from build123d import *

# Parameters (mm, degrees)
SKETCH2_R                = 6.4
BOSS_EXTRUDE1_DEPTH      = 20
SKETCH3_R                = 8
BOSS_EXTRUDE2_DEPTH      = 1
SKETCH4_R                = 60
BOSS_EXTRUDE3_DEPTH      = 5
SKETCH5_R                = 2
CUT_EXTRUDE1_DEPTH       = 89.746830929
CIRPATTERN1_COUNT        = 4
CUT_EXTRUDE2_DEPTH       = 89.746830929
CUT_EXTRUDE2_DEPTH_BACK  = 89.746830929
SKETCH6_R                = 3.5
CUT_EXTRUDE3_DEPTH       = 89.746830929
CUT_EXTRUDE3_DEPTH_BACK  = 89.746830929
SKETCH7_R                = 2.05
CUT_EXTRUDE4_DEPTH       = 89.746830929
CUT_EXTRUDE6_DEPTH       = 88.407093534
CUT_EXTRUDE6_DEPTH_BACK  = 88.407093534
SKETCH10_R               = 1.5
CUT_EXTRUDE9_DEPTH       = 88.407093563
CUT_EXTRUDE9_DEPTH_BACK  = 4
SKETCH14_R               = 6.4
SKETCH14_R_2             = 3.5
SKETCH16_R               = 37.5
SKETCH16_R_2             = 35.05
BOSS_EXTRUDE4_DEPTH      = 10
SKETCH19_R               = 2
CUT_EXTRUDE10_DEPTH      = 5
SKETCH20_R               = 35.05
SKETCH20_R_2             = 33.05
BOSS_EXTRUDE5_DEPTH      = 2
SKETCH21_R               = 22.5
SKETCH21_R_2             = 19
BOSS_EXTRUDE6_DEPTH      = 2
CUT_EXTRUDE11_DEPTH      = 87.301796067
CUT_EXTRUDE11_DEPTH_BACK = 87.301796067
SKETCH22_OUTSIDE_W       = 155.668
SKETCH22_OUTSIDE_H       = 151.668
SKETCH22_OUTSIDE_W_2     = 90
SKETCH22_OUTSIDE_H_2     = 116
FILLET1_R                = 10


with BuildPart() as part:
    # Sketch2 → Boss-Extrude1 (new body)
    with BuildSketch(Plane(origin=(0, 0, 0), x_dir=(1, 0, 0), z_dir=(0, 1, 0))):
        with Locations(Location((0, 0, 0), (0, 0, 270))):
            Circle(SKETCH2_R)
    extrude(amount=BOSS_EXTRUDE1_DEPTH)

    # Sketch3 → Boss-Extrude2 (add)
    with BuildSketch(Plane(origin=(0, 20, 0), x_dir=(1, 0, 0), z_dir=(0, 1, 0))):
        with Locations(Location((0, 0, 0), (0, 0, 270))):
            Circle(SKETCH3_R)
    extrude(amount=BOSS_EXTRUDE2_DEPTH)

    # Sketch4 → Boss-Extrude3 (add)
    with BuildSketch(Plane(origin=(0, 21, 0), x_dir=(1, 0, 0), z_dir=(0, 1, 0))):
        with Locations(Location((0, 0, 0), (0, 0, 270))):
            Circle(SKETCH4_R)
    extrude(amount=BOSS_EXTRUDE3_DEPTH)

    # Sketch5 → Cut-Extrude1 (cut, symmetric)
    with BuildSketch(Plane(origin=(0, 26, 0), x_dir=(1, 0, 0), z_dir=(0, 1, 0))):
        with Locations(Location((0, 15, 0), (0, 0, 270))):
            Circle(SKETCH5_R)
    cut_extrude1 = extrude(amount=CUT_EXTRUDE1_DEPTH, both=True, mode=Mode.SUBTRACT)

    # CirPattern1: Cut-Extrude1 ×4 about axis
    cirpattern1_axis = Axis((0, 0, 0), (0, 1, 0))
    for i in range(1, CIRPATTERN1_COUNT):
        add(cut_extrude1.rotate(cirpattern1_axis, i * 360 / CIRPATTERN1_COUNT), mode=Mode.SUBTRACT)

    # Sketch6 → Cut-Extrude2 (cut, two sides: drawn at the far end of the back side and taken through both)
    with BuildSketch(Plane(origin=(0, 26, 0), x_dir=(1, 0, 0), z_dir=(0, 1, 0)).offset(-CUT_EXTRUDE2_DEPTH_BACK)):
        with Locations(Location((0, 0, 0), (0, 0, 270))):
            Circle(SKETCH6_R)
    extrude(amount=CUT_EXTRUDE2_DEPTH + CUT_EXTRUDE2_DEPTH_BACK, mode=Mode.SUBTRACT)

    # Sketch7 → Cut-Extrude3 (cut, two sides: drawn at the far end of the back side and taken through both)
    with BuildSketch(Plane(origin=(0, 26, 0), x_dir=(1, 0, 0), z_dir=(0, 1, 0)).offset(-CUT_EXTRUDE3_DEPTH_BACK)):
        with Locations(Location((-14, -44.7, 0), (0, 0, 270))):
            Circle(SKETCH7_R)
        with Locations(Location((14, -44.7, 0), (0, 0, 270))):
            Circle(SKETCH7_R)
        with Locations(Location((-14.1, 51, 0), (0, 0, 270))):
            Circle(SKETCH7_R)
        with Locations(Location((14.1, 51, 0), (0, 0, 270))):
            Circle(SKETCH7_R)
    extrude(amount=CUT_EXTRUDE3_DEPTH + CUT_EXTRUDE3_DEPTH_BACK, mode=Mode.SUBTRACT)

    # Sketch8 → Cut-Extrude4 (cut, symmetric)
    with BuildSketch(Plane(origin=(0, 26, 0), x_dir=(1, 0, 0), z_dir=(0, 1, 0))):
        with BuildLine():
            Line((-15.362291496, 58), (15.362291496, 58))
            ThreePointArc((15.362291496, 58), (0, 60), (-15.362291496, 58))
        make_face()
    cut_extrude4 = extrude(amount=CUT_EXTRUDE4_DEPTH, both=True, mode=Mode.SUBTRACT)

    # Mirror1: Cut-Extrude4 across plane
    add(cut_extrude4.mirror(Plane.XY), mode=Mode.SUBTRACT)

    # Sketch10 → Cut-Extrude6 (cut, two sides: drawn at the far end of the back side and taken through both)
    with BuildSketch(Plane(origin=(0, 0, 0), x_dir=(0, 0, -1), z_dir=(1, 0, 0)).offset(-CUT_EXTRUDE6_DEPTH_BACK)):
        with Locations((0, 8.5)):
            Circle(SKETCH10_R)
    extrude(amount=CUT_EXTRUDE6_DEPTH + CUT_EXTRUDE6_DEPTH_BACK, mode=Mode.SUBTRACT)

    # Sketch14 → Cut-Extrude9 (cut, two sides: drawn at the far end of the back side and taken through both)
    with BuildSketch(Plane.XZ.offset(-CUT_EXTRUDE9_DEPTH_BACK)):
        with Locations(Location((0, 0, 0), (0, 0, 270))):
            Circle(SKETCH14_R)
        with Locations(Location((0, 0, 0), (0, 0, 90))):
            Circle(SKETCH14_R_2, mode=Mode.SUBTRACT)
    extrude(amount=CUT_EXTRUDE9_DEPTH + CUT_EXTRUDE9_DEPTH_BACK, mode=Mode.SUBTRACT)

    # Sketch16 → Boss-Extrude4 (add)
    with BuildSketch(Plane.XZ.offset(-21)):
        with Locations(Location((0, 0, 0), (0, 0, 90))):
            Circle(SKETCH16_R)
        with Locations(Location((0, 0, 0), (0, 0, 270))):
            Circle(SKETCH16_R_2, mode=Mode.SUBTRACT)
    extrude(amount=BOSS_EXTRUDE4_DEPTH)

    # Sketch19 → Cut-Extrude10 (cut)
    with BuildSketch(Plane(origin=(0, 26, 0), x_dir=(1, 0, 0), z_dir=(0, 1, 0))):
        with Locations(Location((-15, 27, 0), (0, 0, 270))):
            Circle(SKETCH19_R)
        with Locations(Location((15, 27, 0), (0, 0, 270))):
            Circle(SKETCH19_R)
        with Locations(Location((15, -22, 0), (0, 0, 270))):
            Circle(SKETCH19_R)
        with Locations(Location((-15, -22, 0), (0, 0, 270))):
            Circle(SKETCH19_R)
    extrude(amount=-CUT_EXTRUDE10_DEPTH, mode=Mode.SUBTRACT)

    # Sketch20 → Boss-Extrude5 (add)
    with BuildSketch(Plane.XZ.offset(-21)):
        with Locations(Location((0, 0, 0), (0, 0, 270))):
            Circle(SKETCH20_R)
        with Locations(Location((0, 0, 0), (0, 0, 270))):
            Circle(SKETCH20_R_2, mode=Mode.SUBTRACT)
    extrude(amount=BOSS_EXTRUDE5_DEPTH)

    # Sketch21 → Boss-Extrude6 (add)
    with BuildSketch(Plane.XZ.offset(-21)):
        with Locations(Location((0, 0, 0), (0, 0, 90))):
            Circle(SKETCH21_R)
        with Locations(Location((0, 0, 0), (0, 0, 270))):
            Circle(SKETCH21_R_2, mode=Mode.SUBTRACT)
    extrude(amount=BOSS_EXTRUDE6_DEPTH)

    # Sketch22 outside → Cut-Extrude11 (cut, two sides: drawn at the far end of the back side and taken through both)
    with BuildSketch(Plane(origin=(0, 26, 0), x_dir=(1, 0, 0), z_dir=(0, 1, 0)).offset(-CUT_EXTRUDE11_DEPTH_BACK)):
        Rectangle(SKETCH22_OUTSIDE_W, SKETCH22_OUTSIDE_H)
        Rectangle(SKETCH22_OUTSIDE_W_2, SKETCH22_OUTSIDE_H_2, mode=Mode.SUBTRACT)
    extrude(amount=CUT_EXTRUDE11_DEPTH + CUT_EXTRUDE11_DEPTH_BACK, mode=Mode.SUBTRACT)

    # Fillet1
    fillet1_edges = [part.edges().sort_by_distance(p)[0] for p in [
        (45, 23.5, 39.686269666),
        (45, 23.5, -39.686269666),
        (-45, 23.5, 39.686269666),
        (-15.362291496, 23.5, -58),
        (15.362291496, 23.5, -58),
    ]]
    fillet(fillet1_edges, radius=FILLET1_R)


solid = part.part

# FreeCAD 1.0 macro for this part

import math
import FreeCAD as App
import Part
import Sketcher

V = App.Vector


def edges_at(feature, points):
    """Names of the edges that pass closest to the given points."""
    edges = feature.Shape.Edges
    near = lambda p: min(range(len(edges)), key=lambda i: edges[i].distToShape(Part.Vertex(*p))[0])
    return sorted({f"Edge{near(p) + 1}" for p in points})

doc = App.newDocument("Part")
params = doc.addObject("Spreadsheet::Sheet", "Params")
for row, (alias, value) in enumerate([
    ("sketch1_diameter", "12.8 mm"),
    ("pad1_length", "20 mm"),
    ("sketch2_diameter", "16 mm"),
    ("pad2_length", "1 mm"),
    ("sketch3_diameter", "120 mm"),
    ("pad3_length", "5 mm"),
    ("sketch4_diameter", "4 mm"),
    ("pocket1_length", "179.493662 mm"),
    ("sketch5_diameter", "7 mm"),
    ("sketch6_diameter", "4.1 mm"),
    ("sketch7_radius", "60 mm"),
    ("pocket4_length", "179.493662 mm"),
    ("sketch8_diameter", "3 mm"),
    ("sketch9_diameter", "7 mm"),
    ("sketch9_diameter2", "12.8 mm"),
    ("pocket6_length", "88.407094 mm"),
    ("pocket6_length2", "4 mm"),
    ("sketch10_diameter", "75 mm"),
    ("sketch10_diameter2", "70.1 mm"),
    ("pad4_length", "10 mm"),
    ("sketch11_diameter", "4 mm"),
    ("pocket7_length", "5 mm"),
    ("sketch12_diameter", "70.1 mm"),
    ("sketch12_diameter2", "66.1 mm"),
    ("pad5_length", "2 mm"),
    ("sketch13_diameter", "45 mm"),
    ("sketch13_diameter2", "38 mm"),
    ("pad6_length", "2 mm"),
    ("sketch14_width", "90 mm"),
    ("sketch14_height", "116 mm"),
    ("fillet_radius", "10 mm"),
], start=1):
    params.set(f"A{row}", alias)
    params.set(f"B{row}", "=" + value)
    params.setAlias(f"B{row}", alias)

body = doc.addObject("PartDesign::Body", "Body")

# Sketch on XZ plane
sketch1 = body.newObject("Sketcher::SketchObject", "Sketch")
sketch1.AttachmentSupport = (doc.getObject("XZ_Plane"), [""])
sketch1.MapMode = "FlatFace"
sketch1.addGeometry(Part.Circle(V(0, 0, 0), V(0, 0, 1), 6.4), False)
sketch1.addConstraint([
    Sketcher.Constraint("Coincident", 0, 3, -1, 1),
    Sketcher.Constraint("Diameter", 0, 12.8),
])
sketch1.setExpression("Constraints[1]", "Params.sketch1_diameter")
pad1 = body.newObject("PartDesign::Pad", "Pad")
pad1.Profile = sketch1
pad1.setExpression("Length", "Params.pad1_length")
pad1.Reversed = True

# Sketch on XZ plane
sketch2 = body.newObject("Sketcher::SketchObject", "Sketch001")
sketch2.AttachmentSupport = (doc.getObject("XZ_Plane"), [""])
sketch2.MapMode = "FlatFace"
sketch2.AttachmentOffset = App.Placement(V(0, 0, -20), App.Rotation())
sketch2.addGeometry(Part.Circle(V(0, 0, 0), V(0, 0, 1), 8), False)
sketch2.addConstraint([
    Sketcher.Constraint("Coincident", 0, 3, -1, 1),
    Sketcher.Constraint("Diameter", 0, 16.0),
])
sketch2.setExpression("Constraints[1]", "Params.sketch2_diameter")
pad2 = body.newObject("PartDesign::Pad", "Pad001")
pad2.Profile = sketch2
pad2.setExpression("Length", "Params.pad2_length")
pad2.Reversed = True

# Sketch on XZ plane
sketch3 = body.newObject("Sketcher::SketchObject", "Sketch002")
sketch3.AttachmentSupport = (doc.getObject("XZ_Plane"), [""])
sketch3.MapMode = "FlatFace"
sketch3.AttachmentOffset = App.Placement(V(0, 0, -21), App.Rotation())
sketch3.addGeometry(Part.Circle(V(0, 0, 0), V(0, 0, 1), 60), False)
sketch3.addConstraint([
    Sketcher.Constraint("Coincident", 0, 3, -1, 1),
    Sketcher.Constraint("Diameter", 0, 120.0),
])
sketch3.setExpression("Constraints[1]", "Params.sketch3_diameter")
pad3 = body.newObject("PartDesign::Pad", "Pad002")
pad3.Profile = sketch3
pad3.setExpression("Length", "Params.pad3_length")
pad3.Reversed = True

# Sketch on XZ plane
sketch4 = body.newObject("Sketcher::SketchObject", "Sketch003")
sketch4.AttachmentSupport = (doc.getObject("XZ_Plane"), [""])
sketch4.MapMode = "FlatFace"
sketch4.AttachmentOffset = App.Placement(V(0, 0, -26), App.Rotation())
sketch4.addGeometry(Part.Circle(V(0, -15, 0), V(0, 0, 1), 2), False)
sketch4.addConstraint([
    Sketcher.Constraint("PointOnObject", 0, 3, -2),
    Sketcher.Constraint("Diameter", 0, 4.0),
    Sketcher.Constraint("DistanceY", 0, 3, -1, 1, 15.0),
])
sketch4.setExpression("Constraints[1]", "Params.sketch4_diameter")
pocket1 = body.newObject("PartDesign::Pocket", "Pocket")
pocket1.Profile = sketch4
pocket1.setExpression("Length", "Params.pocket1_length")
pocket1.Midplane = True
doc.recompute()

polarpattern = body.newObject("PartDesign::PolarPattern", "PolarPattern")
polarpattern.Originals = [pocket1]
polarpattern.Axis = (doc.getObject("Y_Axis"), [""])
polarpattern.Angle = 360
polarpattern.Occurrences = 4
body.Tip = polarpattern

# Sketch on XZ plane
sketch5 = body.newObject("Sketcher::SketchObject", "Sketch004")
sketch5.AttachmentSupport = (doc.getObject("XZ_Plane"), [""])
sketch5.MapMode = "FlatFace"
sketch5.AttachmentOffset = App.Placement(V(0, 0, -26), App.Rotation())
sketch5.addGeometry(Part.Circle(V(0, 0, 0), V(0, 0, 1), 3.5), False)
sketch5.addConstraint([
    Sketcher.Constraint("Coincident", 0, 3, -1, 1),
    Sketcher.Constraint("Diameter", 0, 7.0),
])
sketch5.setExpression("Constraints[1]", "Params.sketch5_diameter")
pocket2 = body.newObject("PartDesign::Pocket", "Pocket001")
pocket2.Profile = sketch5
pocket2.Type = "ThroughAll"
pocket2.Midplane = True

# Sketch on XZ plane
sketch6 = body.newObject("Sketcher::SketchObject", "Sketch005")
sketch6.AttachmentSupport = (doc.getObject("XZ_Plane"), [""])
sketch6.MapMode = "FlatFace"
sketch6.AttachmentOffset = App.Placement(V(0, 0, -26), App.Rotation())
sketch6.addGeometry([
    Part.Circle(V(-14, 44.7, 0), V(0, 0, 1), 2.05),
    Part.Circle(V(14, 44.7, 0), V(0, 0, 1), 2.05),
    Part.Circle(V(-14.1, -51, 0), V(0, 0, 1), 2.05),
    Part.Circle(V(14.1, -51, 0), V(0, 0, 1), 2.05),
], False)
sketch6.addConstraint([
    Sketcher.Constraint("Equal", 0, 1),
    Sketcher.Constraint("Equal", 1, 2),
    Sketcher.Constraint("Equal", 2, 3),
    Sketcher.Constraint("Symmetric", 0, 3, 1, 3, -2),
    Sketcher.Constraint("Symmetric", 2, 3, 3, 3, -2),
    Sketcher.Constraint("Diameter", 0, 4.1),
    Sketcher.Constraint("DistanceX", 0, 3, -1, 1, 14.0),
    Sketcher.Constraint("DistanceY", 2, 3, -1, 1, 51.0),
    Sketcher.Constraint("DistanceY", -1, 1, 0, 3, 44.7),
    Sketcher.Constraint("DistanceX", 2, 3, -1, 1, 14.1),
])
sketch6.setExpression("Constraints[5]", "Params.sketch6_diameter")
pocket3 = body.newObject("PartDesign::Pocket", "Pocket002")
pocket3.Profile = sketch6
pocket3.Type = "ThroughAll"
pocket3.Midplane = True

# Sketch on XZ plane
sketch7 = body.newObject("Sketcher::SketchObject", "Sketch006")
sketch7.AttachmentSupport = (doc.getObject("XZ_Plane"), [""])
sketch7.MapMode = "FlatFace"
sketch7.AttachmentOffset = App.Placement(V(0, 0, -26), App.Rotation())
sketch7.addGeometry([
    Part.LineSegment(V(-15.362291, -58, 0), V(15.362291, -58, 0)),
    Part.ArcOfCircle(Part.Circle(V(0, 0, 0), V(0, 0, 1), 60), math.radians(-104.835112), math.radians(-75.164888)),
], False)
sketch7.addConstraint([
    Sketcher.Constraint("Coincident", 0, 1, 1, 1),
    Sketcher.Constraint("Coincident", 1, 2, 0, 2),
    Sketcher.Constraint("Horizontal", 0),
    Sketcher.Constraint("Coincident", 1, 3, -1, 1),
    Sketcher.Constraint("Radius", 1, 60.0),
    Sketcher.Constraint("DistanceY", 0, 1, -1, 1, 58.0),
])
sketch7.setExpression("Constraints[4]", "Params.sketch7_radius")
pocket4 = body.newObject("PartDesign::Pocket", "Pocket003")
pocket4.Profile = sketch7
pocket4.setExpression("Length", "Params.pocket4_length")
pocket4.Midplane = True
doc.recompute()

mirrored = body.newObject("PartDesign::Mirrored", "Mirrored")
mirrored.Originals = [pocket4]
mirrored.MirrorPlane = (doc.getObject("XY_Plane"), [""])
body.Tip = mirrored

# Sketch on YZ plane
sketch8 = body.newObject("Sketcher::SketchObject", "Sketch007")
sketch8.AttachmentSupport = (doc.getObject("YZ_Plane"), [""])
sketch8.MapMode = "FlatFace"
sketch8.addGeometry(Part.Circle(V(8.5, 0, 0), V(0, 0, 1), 1.5), False)
sketch8.addConstraint([
    Sketcher.Constraint("PointOnObject", 0, 3, -1),
    Sketcher.Constraint("Diameter", 0, 3.0),
    Sketcher.Constraint("DistanceX", -1, 1, 0, 3, 8.5),
])
sketch8.setExpression("Constraints[1]", "Params.sketch8_diameter")
pocket5 = body.newObject("PartDesign::Pocket", "Pocket004")
pocket5.Profile = sketch8
pocket5.Type = "ThroughAll"
pocket5.Midplane = True

# Sketch on XZ plane
sketch9 = body.newObject("Sketcher::SketchObject", "Sketch008")
sketch9.AttachmentSupport = (doc.getObject("XZ_Plane"), [""])
sketch9.MapMode = "FlatFace"
sketch9.addGeometry([
    Part.Circle(V(0, 0, 0), V(0, 0, 1), 6.4),
    Part.Circle(V(0, 0, 0), V(0, 0, 1), 3.5),
], False)
sketch9.addConstraint([
    Sketcher.Constraint("Coincident", 0, 3, -1, 1),
    Sketcher.Constraint("Coincident", 1, 3, -1, 1),
    Sketcher.Constraint("Diameter", 1, 7.0),
    Sketcher.Constraint("Diameter", 0, 12.8),
])
sketch9.setExpression("Constraints[2]", "Params.sketch9_diameter")
sketch9.setExpression("Constraints[3]", "Params.sketch9_diameter2")
pocket6 = body.newObject("PartDesign::Pocket", "Pocket005")
pocket6.Profile = sketch9
pocket6.Type = "TwoLengths"
pocket6.setExpression("Length", "Params.pocket6_length")
pocket6.setExpression("Length2", "Params.pocket6_length2")
pocket6.Reversed = True

# Sketch on XZ plane
sketch10 = body.newObject("Sketcher::SketchObject", "Sketch009")
sketch10.AttachmentSupport = (doc.getObject("XZ_Plane"), [""])
sketch10.MapMode = "FlatFace"
sketch10.AttachmentOffset = App.Placement(V(0, 0, -21), App.Rotation())
sketch10.addGeometry([
    Part.Circle(V(0, 0, 0), V(0, 0, 1), 37.5),
    Part.Circle(V(0, 0, 0), V(0, 0, 1), 35.05),
], False)
sketch10.addConstraint([
    Sketcher.Constraint("Coincident", 0, 3, -1, 1),
    Sketcher.Constraint("Coincident", 1, 3, -1, 1),
    Sketcher.Constraint("Diameter", 0, 75.0),
    Sketcher.Constraint("Diameter", 1, 70.1),
])
sketch10.setExpression("Constraints[2]", "Params.sketch10_diameter")
sketch10.setExpression("Constraints[3]", "Params.sketch10_diameter2")
pad4 = body.newObject("PartDesign::Pad", "Pad003")
pad4.Profile = sketch10
pad4.setExpression("Length", "Params.pad4_length")

# Sketch on XZ plane
sketch11 = body.newObject("Sketcher::SketchObject", "Sketch010")
sketch11.AttachmentSupport = (doc.getObject("XZ_Plane"), [""])
sketch11.MapMode = "FlatFace"
sketch11.AttachmentOffset = App.Placement(V(0, 0, -26), App.Rotation())
sketch11.addGeometry([
    Part.Circle(V(-15, -27, 0), V(0, 0, 1), 2),
    Part.Circle(V(15, -27, 0), V(0, 0, 1), 2),
    Part.Circle(V(15, 22, 0), V(0, 0, 1), 2),
    Part.Circle(V(-15, 22, 0), V(0, 0, 1), 2),
], False)
sketch11.addConstraint([
    Sketcher.Constraint("Equal", 0, 1),
    Sketcher.Constraint("Equal", 1, 2),
    Sketcher.Constraint("Equal", 2, 3),
    Sketcher.Constraint("Symmetric", 0, 3, 1, 3, -2),
    Sketcher.Constraint("Symmetric", 2, 3, 3, 3, -2),
    Sketcher.Constraint("Vertical", 1, 3, 2, 3),
    Sketcher.Constraint("Diameter", 0, 4.0),
    Sketcher.Constraint("DistanceX", 0, 3, -1, 1, 15.0),
    Sketcher.Constraint("DistanceY", 0, 3, -1, 1, 27.0),
    Sketcher.Constraint("DistanceY", -1, 1, 2, 3, 22.0),
])
sketch11.setExpression("Constraints[6]", "Params.sketch11_diameter")
pocket7 = body.newObject("PartDesign::Pocket", "Pocket006")
pocket7.Profile = sketch11
pocket7.setExpression("Length", "Params.pocket7_length")
pocket7.Reversed = True

# Sketch on XZ plane
sketch12 = body.newObject("Sketcher::SketchObject", "Sketch011")
sketch12.AttachmentSupport = (doc.getObject("XZ_Plane"), [""])
sketch12.MapMode = "FlatFace"
sketch12.AttachmentOffset = App.Placement(V(0, 0, -21), App.Rotation())
sketch12.addGeometry([
    Part.Circle(V(0, 0, 0), V(0, 0, 1), 35.05),
    Part.Circle(V(0, 0, 0), V(0, 0, 1), 33.05),
], False)
sketch12.addConstraint([
    Sketcher.Constraint("Coincident", 0, 3, -1, 1),
    Sketcher.Constraint("Coincident", 1, 3, -1, 1),
    Sketcher.Constraint("Diameter", 0, 70.1),
    Sketcher.Constraint("Diameter", 1, 66.1),
])
sketch12.setExpression("Constraints[2]", "Params.sketch12_diameter")
sketch12.setExpression("Constraints[3]", "Params.sketch12_diameter2")
pad5 = body.newObject("PartDesign::Pad", "Pad004")
pad5.Profile = sketch12
pad5.setExpression("Length", "Params.pad5_length")

# Sketch on XZ plane
sketch13 = body.newObject("Sketcher::SketchObject", "Sketch012")
sketch13.AttachmentSupport = (doc.getObject("XZ_Plane"), [""])
sketch13.MapMode = "FlatFace"
sketch13.AttachmentOffset = App.Placement(V(0, 0, -21), App.Rotation())
sketch13.addGeometry([
    Part.Circle(V(0, 0, 0), V(0, 0, 1), 22.5),
    Part.Circle(V(0, 0, 0), V(0, 0, 1), 19),
], False)
sketch13.addConstraint([
    Sketcher.Constraint("Coincident", 0, 3, -1, 1),
    Sketcher.Constraint("Coincident", 1, 3, -1, 1),
    Sketcher.Constraint("Diameter", 0, 45.0),
    Sketcher.Constraint("Diameter", 1, 38.0),
])
sketch13.setExpression("Constraints[2]", "Params.sketch13_diameter")
sketch13.setExpression("Constraints[3]", "Params.sketch13_diameter2")
pad6 = body.newObject("PartDesign::Pad", "Pad005")
pad6.Profile = sketch13
pad6.setExpression("Length", "Params.pad6_length")

# Sketch on XZ plane
sketch14 = body.newObject("Sketcher::SketchObject", "Sketch013")
sketch14.AttachmentSupport = (doc.getObject("XZ_Plane"), [""])
sketch14.MapMode = "FlatFace"
sketch14.AttachmentOffset = App.Placement(V(0, 0, -26), App.Rotation())
sketch14.addGeometry([
    Part.LineSegment(V(-77.834, -75.834, 0), V(-77.834, 75.834, 0)),  # 0
    Part.LineSegment(V(-77.834, 75.834, 0), V(77.834, 75.834, 0)),  # 1
    Part.LineSegment(V(77.834, 75.834, 0), V(77.834, -75.834, 0)),  # 2
    Part.LineSegment(V(77.834, -75.834, 0), V(-77.834, -75.834, 0)),  # 3
    Part.LineSegment(V(45, 58, 0), V(-45, 58, 0)),  # 4
    Part.LineSegment(V(-45, 58, 0), V(-45, -58, 0)),  # 5
    Part.LineSegment(V(-45, -58, 0), V(45, -58, 0)),  # 6
    Part.LineSegment(V(45, -58, 0), V(45, 58, 0)),  # 7
], False)
sketch14.addConstraint([
    Sketcher.Constraint("Coincident", 0, 2, 1, 1),
    Sketcher.Constraint("Coincident", 1, 2, 2, 1),
    Sketcher.Constraint("Coincident", 2, 2, 3, 1),
    Sketcher.Constraint("Coincident", 3, 2, 0, 1),
    Sketcher.Constraint("Coincident", 4, 2, 5, 1),
    Sketcher.Constraint("Coincident", 5, 2, 6, 1),
    Sketcher.Constraint("Coincident", 6, 2, 7, 1),
    Sketcher.Constraint("Coincident", 7, 2, 4, 1),
    Sketcher.Constraint("Vertical", 0),
    Sketcher.Constraint("Horizontal", 1),
    Sketcher.Constraint("Vertical", 2),
    Sketcher.Constraint("Horizontal", 3),
    Sketcher.Constraint("Horizontal", 4),
    Sketcher.Constraint("Vertical", 5),
    Sketcher.Constraint("Horizontal", 6),
    Sketcher.Constraint("Vertical", 7),
    Sketcher.Constraint("Symmetric", 0, 2, 2, 2, -1, 1),
    Sketcher.Constraint("Symmetric", 4, 2, 6, 2, -1, 1),
    Sketcher.Constraint("DistanceX", 4, 2, 4, 1, 90.0),
    Sketcher.Constraint("DistanceY", 5, 2, 5, 1, 116.0),
    Sketcher.Constraint("DistanceX", 1, 1, 1, 2, 155.668),
    Sketcher.Constraint("DistanceY", 0, 1, 0, 2, 151.668),
])
sketch14.setExpression("Constraints[18]", "Params.sketch14_width")
sketch14.setExpression("Constraints[19]", "Params.sketch14_height")
pocket8 = body.newObject("PartDesign::Pocket", "Pocket007")
pocket8.Profile = sketch14
pocket8.Type = "ThroughAll"
pocket8.Midplane = True
doc.recompute()

fillet = body.newObject("PartDesign::Fillet", "Fillet")
fillet.Base = (pocket8, edges_at(pocket8, [
    (45, 23.5, 39.686),
    (45, 23.5, -39.686),
    (-45, 23.5, 39.686),
    (-15.362, 23.5, -58),
    (15.362, 23.5, -58),
]))
fillet.setExpression("Radius", "Params.fillet_radius")

doc.recompute()
